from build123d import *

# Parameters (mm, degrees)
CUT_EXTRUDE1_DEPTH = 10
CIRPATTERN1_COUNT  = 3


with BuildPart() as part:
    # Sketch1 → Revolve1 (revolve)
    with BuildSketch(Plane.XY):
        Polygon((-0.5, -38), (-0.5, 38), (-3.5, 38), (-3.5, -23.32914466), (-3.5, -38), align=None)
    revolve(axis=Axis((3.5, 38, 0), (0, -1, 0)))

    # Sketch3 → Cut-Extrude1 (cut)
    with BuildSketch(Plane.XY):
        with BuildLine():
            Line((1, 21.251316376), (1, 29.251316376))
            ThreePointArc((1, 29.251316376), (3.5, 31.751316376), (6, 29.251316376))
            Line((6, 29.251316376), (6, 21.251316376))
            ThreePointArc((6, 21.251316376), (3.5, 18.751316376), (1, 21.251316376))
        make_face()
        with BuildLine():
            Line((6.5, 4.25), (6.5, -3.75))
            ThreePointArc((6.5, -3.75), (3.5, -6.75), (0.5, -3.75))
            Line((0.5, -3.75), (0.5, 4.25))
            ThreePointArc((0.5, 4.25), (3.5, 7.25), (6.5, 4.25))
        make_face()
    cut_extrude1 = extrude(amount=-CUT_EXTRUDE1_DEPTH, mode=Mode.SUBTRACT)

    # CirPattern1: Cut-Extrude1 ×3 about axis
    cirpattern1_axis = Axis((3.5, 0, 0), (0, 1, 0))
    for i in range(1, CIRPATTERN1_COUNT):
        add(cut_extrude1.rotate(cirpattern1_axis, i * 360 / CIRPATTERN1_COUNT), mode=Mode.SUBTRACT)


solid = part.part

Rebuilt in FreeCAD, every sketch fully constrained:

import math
import FreeCAD as App
import Part
import Sketcher

V = App.Vector

doc = App.newDocument("Part")
body = doc.addObject("PartDesign::Body", "Body")

# Sketch on XY plane
sketch1 = body.newObject("Sketcher::SketchObject", "Sketch")
sketch1.AttachmentSupport = (doc.getObject("XY_Plane"), [""])
sketch1.MapMode = "FlatFace"
sketch1.addGeometry(Part.LineSegment(V(-0.5, -38, 0), V(-0.5, 38, 0)), False)
sketch1.addGeometry(Part.LineSegment(V(-0.5, 38, 0), V(-3.5, 38, 0)), False)
sketch1.addGeometry(Part.LineSegment(V(-3.5, 38, 0), V(-3.5, -38, 0)), False)
sketch1.addGeometry(Part.LineSegment(V(-3.5, -38, 0), V(-0.5, -38, 0)), False)
sketch1.addGeometry(Part.LineSegment(V(3.5, 38, 0), V(3.5, -38, 0)), True)  # axis
sketch1.addConstraint(Sketcher.Constraint("Coincident", 0, 2, 1, 1))
sketch1.addConstraint(Sketcher.Constraint("Coincident", 1, 2, 2, 1))
sketch1.addConstraint(Sketcher.Constraint("Coincident", 2, 2, 3, 1))
sketch1.addConstraint(Sketcher.Constraint("Coincident", 3, 2, 0, 1))
sketch1.addConstraint(Sketcher.Constraint("Vertical", 0))
sketch1.addConstraint(Sketcher.Constraint("Horizontal", 1))
sketch1.addConstraint(Sketcher.Constraint("Vertical", 2))
sketch1.addConstraint(Sketcher.Constraint("Horizontal", 3))
sketch1.addConstraint(Sketcher.Constraint("Vertical", 4))
sketch1.addConstraint(Sketcher.Constraint("Symmetric", 2, 2, 4, 1, -1, 1))
sketch1.addConstraint(Sketcher.Constraint("Horizontal", 1, 2, 4, 1))
sketch1.addConstraint(Sketcher.Constraint("Horizontal", 3, 2, 4, 2))
sketch1.addConstraint(Sketcher.Constraint("DistanceX", 1, 2, 1, 1, 3.0))
sketch1.addConstraint(Sketcher.Constraint("DistanceY", 0, 1, 0, 2, 76.0))
sketch1.addConstraint(Sketcher.Constraint("DistanceX", 0, 2, 4, 1, 4.0))
revolution = body.newObject("PartDesign::Revolution", "Revolution")
revolution.Profile = sketch1
revolution.ReferenceAxis = (sketch1, ["Axis0"])
revolution.Angle = 360

# Sketch on XY plane
sketch2 = body.newObject("Sketcher::SketchObject", "Sketch001")
sketch2.AttachmentSupport = (doc.getObject("XY_Plane"), [""])
sketch2.MapMode = "FlatFace"
sketch2.addGeometry(Part.LineSegment(V(1, 29.3, 0), V(1, 21.3, 0)), False)
sketch2.addGeometry(Part.ArcOfCircle(Part.Circle(V(3.5, 21.3, 0), V(0, 0, 1), 2.5), math.radians(180), math.radians(360)), False)
sketch2.addGeometry(Part.LineSegment(V(6, 21.3, 0), V(6, 29.3, 0)), False)
sketch2.addGeometry(Part.ArcOfCircle(Part.Circle(V(3.5, 29.3, 0), V(0, 0, 1), 2.5), math.radians(0), math.radians(180)), False)
sketch2.addGeometry(Part.LineSegment(V(6.5, -3.8, 0), V(6.5, 4.2, 0)), False)
sketch2.addGeometry(Part.ArcOfCircle(Part.Circle(V(3.5, 4.2, 0), V(0, 0, 1), 3), math.radians(0), math.radians(180)), False)
sketch2.addGeometry(Part.LineSegment(V(0.5, 4.2, 0), V(0.5, -3.8, 0)), False)
sketch2.addGeometry(Part.ArcOfCircle(Part.Circle(V(3.5, -3.8, 0), V(0, 0, 1), 3), math.radians(180), math.radians(360)), False)
sketch2.addConstraint(Sketcher.Constraint("Tangent", 0, 2, 1, 1))
sketch2.addConstraint(Sketcher.Constraint("Tangent", 1, 2, 2, 1))
sketch2.addConstraint(Sketcher.Constraint("Tangent", 2, 2, 3, 1))
sketch2.addConstraint(Sketcher.Constraint("Tangent", 3, 2, 0, 1))
sketch2.addConstraint(Sketcher.Constraint("Tangent", 4, 2, 5, 1))
sketch2.addConstraint(Sketcher.Constraint("Tangent", 5, 2, 6, 1))
sketch2.addConstraint(Sketcher.Constraint("Tangent", 6, 2, 7, 1))
sketch2.addConstraint(Sketcher.Constraint("Tangent", 7, 2, 4, 1))
sketch2.addConstraint(Sketcher.Constraint("Vertical", 0))
sketch2.addConstraint(Sketcher.Constraint("Vertical", 2))
sketch2.addConstraint(Sketcher.Constraint("Vertical", 4))
sketch2.addConstraint(Sketcher.Constraint("Vertical", 6))
sketch2.addConstraint(Sketcher.Constraint("Vertical", 3, 3, 5, 3))
sketch2.addConstraint(Sketcher.Constraint("Equal", 2, 4))
sketch2.addConstraint(Sketcher.Constraint("Radius", 5, 3.0))
sketch2.addConstraint(Sketcher.Constraint("Radius", 1, 2.5))
sketch2.addConstraint(Sketcher.Constraint("DistanceY", 0, 2, 0, 1, 8.0))
sketch2.addConstraint(Sketcher.Constraint("DistanceX", -1, 1, 0, 2, 1.0))
sketch2.addConstraint(Sketcher.Constraint("DistanceY", -1, 1, 5, 3, 4.25))
sketch2.addConstraint(Sketcher.Constraint("DistanceY", -1, 1, 1, 3, 21.251316))
pocket1 = body.newObject("PartDesign::Pocket", "Pocket")
pocket1.Profile = sketch2
pocket1.Length = 10
doc.recompute()

datumline = body.newObject("PartDesign::Line", "DatumLine")
datumline.Placement = App.Placement(V(3.5, 0, 0), App.Rotation(V(0, 0, 1), V(0, 1, 0)))
polarpattern = body.newObject("PartDesign::PolarPattern", "PolarPattern")
polarpattern.Originals = [pocket1]
polarpattern.Axis = (datumline, [""])
polarpattern.Angle = 360
polarpattern.Occurrences = 3
body.Tip = polarpattern

doc.recompute()
